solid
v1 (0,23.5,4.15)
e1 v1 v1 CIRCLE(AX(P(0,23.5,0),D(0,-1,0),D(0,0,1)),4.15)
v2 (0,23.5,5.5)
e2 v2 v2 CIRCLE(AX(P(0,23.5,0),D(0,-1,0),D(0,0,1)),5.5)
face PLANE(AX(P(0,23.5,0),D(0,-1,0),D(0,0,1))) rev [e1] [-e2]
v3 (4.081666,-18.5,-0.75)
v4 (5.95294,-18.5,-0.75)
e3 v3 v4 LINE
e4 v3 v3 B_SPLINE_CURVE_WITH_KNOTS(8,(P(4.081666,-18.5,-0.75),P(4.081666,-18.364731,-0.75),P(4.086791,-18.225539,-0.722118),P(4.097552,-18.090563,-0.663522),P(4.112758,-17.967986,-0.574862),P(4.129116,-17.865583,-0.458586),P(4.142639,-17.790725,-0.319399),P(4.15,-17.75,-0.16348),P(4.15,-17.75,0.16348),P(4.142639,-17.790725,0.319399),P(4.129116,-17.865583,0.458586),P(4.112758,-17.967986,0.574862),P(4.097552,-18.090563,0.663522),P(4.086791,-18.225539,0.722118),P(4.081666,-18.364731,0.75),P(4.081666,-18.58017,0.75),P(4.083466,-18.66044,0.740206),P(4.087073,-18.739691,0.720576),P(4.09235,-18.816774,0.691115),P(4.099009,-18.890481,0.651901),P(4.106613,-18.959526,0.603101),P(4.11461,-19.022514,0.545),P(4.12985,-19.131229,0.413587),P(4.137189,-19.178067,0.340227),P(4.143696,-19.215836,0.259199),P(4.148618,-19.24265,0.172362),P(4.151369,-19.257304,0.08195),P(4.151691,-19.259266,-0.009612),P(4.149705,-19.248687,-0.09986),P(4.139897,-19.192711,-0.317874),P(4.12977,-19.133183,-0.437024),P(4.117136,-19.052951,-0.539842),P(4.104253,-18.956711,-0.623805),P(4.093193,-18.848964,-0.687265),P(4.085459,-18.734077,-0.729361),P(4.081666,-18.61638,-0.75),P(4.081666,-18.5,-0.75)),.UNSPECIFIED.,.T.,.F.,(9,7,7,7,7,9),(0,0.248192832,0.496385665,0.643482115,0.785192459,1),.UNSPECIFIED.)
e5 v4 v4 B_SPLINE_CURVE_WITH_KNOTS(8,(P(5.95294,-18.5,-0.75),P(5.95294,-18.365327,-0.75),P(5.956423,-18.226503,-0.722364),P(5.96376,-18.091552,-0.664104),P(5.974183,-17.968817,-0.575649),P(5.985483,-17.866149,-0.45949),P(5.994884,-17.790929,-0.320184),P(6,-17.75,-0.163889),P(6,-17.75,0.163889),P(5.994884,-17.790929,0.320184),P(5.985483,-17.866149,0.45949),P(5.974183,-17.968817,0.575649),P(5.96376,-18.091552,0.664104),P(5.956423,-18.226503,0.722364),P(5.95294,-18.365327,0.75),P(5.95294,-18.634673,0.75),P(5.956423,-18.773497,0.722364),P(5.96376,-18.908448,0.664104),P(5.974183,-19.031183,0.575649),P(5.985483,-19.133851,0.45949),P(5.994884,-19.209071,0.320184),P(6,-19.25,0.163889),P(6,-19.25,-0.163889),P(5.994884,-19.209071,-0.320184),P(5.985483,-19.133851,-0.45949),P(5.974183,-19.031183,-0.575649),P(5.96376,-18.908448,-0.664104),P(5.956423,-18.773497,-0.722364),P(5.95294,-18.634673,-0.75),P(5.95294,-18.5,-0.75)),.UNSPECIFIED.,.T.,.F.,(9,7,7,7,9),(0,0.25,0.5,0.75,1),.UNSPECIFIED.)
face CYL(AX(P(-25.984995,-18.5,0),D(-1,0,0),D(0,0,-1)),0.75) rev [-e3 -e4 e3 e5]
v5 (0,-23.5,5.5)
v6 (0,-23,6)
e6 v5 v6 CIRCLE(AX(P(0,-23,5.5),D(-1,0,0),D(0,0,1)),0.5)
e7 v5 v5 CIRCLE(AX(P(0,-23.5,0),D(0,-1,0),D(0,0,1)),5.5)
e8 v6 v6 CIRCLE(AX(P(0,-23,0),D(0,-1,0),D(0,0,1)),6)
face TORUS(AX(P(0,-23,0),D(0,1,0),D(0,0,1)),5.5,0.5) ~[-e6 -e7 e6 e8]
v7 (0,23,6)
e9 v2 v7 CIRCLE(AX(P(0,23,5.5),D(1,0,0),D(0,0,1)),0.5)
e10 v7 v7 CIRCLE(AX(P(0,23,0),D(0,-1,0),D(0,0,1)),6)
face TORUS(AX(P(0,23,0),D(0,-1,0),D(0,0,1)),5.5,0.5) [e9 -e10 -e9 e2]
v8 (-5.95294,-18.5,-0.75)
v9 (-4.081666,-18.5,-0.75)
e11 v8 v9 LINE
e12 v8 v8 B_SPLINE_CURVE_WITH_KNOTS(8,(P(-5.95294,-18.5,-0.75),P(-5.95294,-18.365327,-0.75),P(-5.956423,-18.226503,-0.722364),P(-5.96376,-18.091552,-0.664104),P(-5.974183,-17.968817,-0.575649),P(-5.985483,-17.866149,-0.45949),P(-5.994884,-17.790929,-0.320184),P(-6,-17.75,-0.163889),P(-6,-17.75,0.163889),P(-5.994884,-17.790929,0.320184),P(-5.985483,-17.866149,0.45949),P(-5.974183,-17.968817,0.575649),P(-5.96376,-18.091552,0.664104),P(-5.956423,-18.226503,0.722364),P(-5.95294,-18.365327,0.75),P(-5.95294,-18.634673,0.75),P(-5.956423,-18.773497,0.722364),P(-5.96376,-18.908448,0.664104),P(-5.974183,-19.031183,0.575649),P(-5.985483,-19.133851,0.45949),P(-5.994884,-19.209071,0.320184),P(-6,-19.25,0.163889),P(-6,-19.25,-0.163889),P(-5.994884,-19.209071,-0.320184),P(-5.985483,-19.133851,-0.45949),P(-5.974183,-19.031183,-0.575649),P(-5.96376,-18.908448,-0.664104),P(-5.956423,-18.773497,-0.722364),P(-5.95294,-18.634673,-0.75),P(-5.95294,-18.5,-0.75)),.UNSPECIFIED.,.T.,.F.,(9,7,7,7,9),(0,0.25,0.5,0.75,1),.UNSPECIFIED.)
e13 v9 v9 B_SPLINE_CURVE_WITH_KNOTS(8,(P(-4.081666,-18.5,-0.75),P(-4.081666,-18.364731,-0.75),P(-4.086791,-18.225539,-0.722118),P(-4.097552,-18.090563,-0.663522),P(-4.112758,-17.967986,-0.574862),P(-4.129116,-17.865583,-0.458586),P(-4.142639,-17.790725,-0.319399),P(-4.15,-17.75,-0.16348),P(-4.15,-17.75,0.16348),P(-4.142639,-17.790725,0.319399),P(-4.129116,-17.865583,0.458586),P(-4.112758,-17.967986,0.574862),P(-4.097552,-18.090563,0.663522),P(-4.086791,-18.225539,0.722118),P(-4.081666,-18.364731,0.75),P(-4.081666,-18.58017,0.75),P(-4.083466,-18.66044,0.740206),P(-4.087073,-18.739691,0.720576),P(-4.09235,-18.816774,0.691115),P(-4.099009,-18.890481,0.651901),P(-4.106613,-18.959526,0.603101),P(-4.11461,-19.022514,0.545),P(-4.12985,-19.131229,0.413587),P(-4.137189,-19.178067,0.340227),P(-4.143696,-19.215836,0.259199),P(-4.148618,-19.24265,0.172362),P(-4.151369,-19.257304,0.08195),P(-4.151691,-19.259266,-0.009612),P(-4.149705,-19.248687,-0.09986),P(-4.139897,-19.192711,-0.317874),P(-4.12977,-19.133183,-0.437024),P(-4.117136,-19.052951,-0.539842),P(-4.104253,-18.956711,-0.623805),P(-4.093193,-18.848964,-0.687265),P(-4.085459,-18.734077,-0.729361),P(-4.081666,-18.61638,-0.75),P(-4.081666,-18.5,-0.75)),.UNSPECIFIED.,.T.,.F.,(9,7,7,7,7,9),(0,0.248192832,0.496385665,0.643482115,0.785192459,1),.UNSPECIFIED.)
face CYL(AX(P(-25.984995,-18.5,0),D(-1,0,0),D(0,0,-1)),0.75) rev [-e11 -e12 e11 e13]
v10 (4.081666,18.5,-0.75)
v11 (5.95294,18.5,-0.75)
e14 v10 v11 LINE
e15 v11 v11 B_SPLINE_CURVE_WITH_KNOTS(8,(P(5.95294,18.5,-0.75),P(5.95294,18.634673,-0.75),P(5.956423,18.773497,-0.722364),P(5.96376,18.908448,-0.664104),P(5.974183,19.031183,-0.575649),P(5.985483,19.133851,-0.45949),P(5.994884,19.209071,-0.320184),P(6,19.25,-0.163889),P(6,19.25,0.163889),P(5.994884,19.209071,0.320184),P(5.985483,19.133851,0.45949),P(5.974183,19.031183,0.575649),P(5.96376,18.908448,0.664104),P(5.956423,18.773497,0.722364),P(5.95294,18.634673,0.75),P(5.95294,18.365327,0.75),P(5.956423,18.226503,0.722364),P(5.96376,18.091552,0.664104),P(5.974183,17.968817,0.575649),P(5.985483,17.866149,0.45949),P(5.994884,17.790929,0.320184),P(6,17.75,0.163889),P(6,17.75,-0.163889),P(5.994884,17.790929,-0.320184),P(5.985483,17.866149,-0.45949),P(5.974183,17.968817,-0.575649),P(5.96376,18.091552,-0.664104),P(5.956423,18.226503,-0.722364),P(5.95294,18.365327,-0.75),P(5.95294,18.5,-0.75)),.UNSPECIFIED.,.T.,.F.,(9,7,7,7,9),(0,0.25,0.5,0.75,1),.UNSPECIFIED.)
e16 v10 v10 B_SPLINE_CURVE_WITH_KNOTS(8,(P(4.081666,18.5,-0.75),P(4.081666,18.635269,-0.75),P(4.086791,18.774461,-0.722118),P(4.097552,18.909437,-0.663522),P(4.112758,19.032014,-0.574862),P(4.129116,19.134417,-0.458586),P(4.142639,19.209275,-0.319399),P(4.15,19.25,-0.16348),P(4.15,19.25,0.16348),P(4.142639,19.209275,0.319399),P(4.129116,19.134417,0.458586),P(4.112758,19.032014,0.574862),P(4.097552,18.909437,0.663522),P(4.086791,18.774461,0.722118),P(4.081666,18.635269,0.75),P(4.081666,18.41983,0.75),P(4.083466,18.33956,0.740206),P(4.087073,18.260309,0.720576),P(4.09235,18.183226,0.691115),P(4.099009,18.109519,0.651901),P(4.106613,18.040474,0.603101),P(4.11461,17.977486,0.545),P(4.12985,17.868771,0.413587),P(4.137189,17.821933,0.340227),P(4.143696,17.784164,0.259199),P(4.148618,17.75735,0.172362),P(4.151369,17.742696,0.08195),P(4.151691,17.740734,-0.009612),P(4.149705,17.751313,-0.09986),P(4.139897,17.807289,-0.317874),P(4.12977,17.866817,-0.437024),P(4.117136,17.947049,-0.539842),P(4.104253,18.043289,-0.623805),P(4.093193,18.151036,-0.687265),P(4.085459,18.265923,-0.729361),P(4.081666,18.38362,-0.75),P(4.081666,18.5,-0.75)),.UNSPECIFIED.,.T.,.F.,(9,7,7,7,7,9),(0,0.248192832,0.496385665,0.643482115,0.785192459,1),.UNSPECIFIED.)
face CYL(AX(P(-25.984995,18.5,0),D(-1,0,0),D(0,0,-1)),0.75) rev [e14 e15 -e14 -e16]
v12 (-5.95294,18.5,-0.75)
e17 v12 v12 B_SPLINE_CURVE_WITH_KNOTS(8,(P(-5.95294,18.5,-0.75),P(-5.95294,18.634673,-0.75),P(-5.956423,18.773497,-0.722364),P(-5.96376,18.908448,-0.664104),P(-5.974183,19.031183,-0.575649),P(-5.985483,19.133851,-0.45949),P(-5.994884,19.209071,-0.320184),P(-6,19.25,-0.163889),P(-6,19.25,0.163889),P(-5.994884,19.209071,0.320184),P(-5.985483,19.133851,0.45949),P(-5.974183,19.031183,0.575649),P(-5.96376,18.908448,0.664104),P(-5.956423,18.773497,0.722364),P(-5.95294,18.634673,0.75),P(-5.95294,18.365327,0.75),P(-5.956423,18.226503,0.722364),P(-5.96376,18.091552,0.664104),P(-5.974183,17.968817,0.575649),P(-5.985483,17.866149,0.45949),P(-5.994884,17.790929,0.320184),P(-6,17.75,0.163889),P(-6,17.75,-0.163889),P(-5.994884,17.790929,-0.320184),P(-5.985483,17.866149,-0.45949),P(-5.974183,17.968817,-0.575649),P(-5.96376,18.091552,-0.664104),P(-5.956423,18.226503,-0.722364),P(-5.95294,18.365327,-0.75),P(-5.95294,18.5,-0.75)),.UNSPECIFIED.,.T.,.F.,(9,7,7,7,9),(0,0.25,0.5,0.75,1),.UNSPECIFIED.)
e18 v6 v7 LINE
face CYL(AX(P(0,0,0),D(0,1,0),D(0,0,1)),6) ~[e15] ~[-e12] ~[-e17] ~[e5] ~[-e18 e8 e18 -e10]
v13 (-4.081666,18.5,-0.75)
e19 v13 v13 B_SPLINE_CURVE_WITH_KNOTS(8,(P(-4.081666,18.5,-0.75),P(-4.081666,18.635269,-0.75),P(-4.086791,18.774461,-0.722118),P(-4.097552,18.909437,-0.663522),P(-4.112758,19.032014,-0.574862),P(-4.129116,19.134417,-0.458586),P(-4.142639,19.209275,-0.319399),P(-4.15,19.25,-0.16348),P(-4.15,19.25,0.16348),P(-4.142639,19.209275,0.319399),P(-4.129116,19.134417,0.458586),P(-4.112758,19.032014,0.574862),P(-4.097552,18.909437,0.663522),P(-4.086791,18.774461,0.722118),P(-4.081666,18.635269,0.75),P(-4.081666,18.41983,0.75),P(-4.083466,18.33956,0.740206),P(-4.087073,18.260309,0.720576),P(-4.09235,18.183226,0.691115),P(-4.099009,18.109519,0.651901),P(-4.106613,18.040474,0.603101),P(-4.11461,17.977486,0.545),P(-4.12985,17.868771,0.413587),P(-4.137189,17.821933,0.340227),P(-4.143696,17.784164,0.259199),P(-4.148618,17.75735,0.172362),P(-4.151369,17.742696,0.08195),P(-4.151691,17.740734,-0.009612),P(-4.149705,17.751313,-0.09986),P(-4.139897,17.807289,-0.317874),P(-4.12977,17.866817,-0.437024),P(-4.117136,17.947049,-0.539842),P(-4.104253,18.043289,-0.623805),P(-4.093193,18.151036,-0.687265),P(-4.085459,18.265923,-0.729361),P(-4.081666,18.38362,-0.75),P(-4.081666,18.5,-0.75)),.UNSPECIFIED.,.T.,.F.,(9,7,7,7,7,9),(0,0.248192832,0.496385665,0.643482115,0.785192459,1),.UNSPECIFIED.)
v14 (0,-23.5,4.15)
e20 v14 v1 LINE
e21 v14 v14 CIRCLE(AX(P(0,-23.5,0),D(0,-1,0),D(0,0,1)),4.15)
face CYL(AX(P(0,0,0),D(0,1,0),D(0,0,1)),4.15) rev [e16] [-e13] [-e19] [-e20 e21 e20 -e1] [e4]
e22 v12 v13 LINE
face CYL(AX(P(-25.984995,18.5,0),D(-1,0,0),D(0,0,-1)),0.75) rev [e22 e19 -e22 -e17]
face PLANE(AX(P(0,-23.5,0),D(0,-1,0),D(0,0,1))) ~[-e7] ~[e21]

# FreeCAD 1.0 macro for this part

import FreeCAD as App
import Part
import Sketcher
from FreeCAD import Vector
Q = App.Units.Quantity


def edges_at(feature, points):
    """Names of the edges that pass closest to the given points."""
    edges = feature.Shape.Edges
    near = lambda p: min(range(len(edges)), key=lambda i: edges[i].distToShape(Part.Vertex(*p))[0])
    return sorted({f"Edge{near(p) + 1}" for p in points})

doc = App.newDocument("Part")
body = doc.addObject("PartDesign::Body", "Body")

# Sketch on YZ plane
sketch1 = doc.addObject("Sketcher::SketchObject", "Sketch")
body.addObject(sketch1)
sketch1.AttachmentSupport = (doc.YZ_Plane, [""])
sketch1.MapMode = "FlatFace"
sketch1.addGeometry(Part.LineSegment(Vector(23.5, -4.15, 0), Vector(-23.5, -4.15, 0)), False)
sketch1.addGeometry(Part.LineSegment(Vector(-23.5, -4.15, 0), Vector(-23.5, -6, 0)), False)
sketch1.addGeometry(Part.LineSegment(Vector(-23.5, -6, 0), Vector(23.5, -6, 0)), False)
sketch1.addGeometry(Part.LineSegment(Vector(23.5, -6, 0), Vector(23.5, -4.15, 0)), False)
sketch1.addConstraint(Sketcher.Constraint("Coincident", 0, 2, 1, 1))
sketch1.addConstraint(Sketcher.Constraint("Coincident", 1, 2, 2, 1))
sketch1.addConstraint(Sketcher.Constraint("Coincident", 2, 2, 3, 1))
sketch1.addConstraint(Sketcher.Constraint("Coincident", 3, 2, 0, 1))
sketch1.addConstraint(Sketcher.Constraint("Horizontal", 0))
sketch1.addConstraint(Sketcher.Constraint("Vertical", 1))
sketch1.addConstraint(Sketcher.Constraint("Horizontal", 2))
sketch1.addConstraint(Sketcher.Constraint("Vertical", 3))
sketch1.addConstraint(Sketcher.Constraint("DistanceX", 0, 2, 0, 1, Q("47 mm")))
sketch1.addConstraint(Sketcher.Constraint("DistanceY", 1, 2, -1, 1, Q("6 mm")))
sketch1.addConstraint(Sketcher.Constraint("DistanceY", 1, 2, 1, 1, Q("1.85 mm")))
sketch1.addConstraint(Sketcher.Constraint("DistanceX", 0, 2, -1, 1, Q("23.5 mm")))
revolution = doc.addObject("PartDesign::Revolution", "Revolution")
body.addObject(revolution)
revolution.Profile = sketch1
revolution.ReferenceAxis = (sketch1, ["H_Axis"])
revolution.Angle = 360

# Sketch on YZ plane
sketch2 = doc.addObject("Sketcher::SketchObject", "Sketch001")
body.addObject(sketch2)
sketch2.AttachmentSupport = (doc.YZ_Plane, [""])
sketch2.MapMode = "FlatFace"
sketch2.addGeometry(Part.Circle(Vector(18.5, 0, 0), Vector(0, 0, 1), 0.75), False)
sketch2.addGeometry(Part.Circle(Vector(-18.5, 0, 0), Vector(0, 0, 1), 0.75), False)
sketch2.addConstraint(Sketcher.Constraint("Equal", 0, 1))
sketch2.addConstraint(Sketcher.Constraint("Symmetric", 0, 3, 1, 3, -1, 1))
sketch2.addConstraint(Sketcher.Constraint("PointOnObject", 0, 3, -1))
sketch2.addConstraint(Sketcher.Constraint("Diameter", 0, Q("1.5 mm")))
sketch2.addConstraint(Sketcher.Constraint("DistanceX", 1, 3, 0, 3, Q("37 mm")))
pocket1 = doc.addObject("PartDesign::Pocket", "Pocket")
body.addObject(pocket1)
pocket1.Profile = sketch2
pocket1.Type = "ThroughAll"
pocket1.Midplane = True
doc.recompute()

fillet = doc.addObject("PartDesign::Fillet", "Fillet")
body.addObject(fillet)
fillet.Base = (pocket1, edges_at(pocket1, [(0, -23.5, -6), (0, 23.5, -6)]))
fillet.Radius = 0.5

doc.recompute()
